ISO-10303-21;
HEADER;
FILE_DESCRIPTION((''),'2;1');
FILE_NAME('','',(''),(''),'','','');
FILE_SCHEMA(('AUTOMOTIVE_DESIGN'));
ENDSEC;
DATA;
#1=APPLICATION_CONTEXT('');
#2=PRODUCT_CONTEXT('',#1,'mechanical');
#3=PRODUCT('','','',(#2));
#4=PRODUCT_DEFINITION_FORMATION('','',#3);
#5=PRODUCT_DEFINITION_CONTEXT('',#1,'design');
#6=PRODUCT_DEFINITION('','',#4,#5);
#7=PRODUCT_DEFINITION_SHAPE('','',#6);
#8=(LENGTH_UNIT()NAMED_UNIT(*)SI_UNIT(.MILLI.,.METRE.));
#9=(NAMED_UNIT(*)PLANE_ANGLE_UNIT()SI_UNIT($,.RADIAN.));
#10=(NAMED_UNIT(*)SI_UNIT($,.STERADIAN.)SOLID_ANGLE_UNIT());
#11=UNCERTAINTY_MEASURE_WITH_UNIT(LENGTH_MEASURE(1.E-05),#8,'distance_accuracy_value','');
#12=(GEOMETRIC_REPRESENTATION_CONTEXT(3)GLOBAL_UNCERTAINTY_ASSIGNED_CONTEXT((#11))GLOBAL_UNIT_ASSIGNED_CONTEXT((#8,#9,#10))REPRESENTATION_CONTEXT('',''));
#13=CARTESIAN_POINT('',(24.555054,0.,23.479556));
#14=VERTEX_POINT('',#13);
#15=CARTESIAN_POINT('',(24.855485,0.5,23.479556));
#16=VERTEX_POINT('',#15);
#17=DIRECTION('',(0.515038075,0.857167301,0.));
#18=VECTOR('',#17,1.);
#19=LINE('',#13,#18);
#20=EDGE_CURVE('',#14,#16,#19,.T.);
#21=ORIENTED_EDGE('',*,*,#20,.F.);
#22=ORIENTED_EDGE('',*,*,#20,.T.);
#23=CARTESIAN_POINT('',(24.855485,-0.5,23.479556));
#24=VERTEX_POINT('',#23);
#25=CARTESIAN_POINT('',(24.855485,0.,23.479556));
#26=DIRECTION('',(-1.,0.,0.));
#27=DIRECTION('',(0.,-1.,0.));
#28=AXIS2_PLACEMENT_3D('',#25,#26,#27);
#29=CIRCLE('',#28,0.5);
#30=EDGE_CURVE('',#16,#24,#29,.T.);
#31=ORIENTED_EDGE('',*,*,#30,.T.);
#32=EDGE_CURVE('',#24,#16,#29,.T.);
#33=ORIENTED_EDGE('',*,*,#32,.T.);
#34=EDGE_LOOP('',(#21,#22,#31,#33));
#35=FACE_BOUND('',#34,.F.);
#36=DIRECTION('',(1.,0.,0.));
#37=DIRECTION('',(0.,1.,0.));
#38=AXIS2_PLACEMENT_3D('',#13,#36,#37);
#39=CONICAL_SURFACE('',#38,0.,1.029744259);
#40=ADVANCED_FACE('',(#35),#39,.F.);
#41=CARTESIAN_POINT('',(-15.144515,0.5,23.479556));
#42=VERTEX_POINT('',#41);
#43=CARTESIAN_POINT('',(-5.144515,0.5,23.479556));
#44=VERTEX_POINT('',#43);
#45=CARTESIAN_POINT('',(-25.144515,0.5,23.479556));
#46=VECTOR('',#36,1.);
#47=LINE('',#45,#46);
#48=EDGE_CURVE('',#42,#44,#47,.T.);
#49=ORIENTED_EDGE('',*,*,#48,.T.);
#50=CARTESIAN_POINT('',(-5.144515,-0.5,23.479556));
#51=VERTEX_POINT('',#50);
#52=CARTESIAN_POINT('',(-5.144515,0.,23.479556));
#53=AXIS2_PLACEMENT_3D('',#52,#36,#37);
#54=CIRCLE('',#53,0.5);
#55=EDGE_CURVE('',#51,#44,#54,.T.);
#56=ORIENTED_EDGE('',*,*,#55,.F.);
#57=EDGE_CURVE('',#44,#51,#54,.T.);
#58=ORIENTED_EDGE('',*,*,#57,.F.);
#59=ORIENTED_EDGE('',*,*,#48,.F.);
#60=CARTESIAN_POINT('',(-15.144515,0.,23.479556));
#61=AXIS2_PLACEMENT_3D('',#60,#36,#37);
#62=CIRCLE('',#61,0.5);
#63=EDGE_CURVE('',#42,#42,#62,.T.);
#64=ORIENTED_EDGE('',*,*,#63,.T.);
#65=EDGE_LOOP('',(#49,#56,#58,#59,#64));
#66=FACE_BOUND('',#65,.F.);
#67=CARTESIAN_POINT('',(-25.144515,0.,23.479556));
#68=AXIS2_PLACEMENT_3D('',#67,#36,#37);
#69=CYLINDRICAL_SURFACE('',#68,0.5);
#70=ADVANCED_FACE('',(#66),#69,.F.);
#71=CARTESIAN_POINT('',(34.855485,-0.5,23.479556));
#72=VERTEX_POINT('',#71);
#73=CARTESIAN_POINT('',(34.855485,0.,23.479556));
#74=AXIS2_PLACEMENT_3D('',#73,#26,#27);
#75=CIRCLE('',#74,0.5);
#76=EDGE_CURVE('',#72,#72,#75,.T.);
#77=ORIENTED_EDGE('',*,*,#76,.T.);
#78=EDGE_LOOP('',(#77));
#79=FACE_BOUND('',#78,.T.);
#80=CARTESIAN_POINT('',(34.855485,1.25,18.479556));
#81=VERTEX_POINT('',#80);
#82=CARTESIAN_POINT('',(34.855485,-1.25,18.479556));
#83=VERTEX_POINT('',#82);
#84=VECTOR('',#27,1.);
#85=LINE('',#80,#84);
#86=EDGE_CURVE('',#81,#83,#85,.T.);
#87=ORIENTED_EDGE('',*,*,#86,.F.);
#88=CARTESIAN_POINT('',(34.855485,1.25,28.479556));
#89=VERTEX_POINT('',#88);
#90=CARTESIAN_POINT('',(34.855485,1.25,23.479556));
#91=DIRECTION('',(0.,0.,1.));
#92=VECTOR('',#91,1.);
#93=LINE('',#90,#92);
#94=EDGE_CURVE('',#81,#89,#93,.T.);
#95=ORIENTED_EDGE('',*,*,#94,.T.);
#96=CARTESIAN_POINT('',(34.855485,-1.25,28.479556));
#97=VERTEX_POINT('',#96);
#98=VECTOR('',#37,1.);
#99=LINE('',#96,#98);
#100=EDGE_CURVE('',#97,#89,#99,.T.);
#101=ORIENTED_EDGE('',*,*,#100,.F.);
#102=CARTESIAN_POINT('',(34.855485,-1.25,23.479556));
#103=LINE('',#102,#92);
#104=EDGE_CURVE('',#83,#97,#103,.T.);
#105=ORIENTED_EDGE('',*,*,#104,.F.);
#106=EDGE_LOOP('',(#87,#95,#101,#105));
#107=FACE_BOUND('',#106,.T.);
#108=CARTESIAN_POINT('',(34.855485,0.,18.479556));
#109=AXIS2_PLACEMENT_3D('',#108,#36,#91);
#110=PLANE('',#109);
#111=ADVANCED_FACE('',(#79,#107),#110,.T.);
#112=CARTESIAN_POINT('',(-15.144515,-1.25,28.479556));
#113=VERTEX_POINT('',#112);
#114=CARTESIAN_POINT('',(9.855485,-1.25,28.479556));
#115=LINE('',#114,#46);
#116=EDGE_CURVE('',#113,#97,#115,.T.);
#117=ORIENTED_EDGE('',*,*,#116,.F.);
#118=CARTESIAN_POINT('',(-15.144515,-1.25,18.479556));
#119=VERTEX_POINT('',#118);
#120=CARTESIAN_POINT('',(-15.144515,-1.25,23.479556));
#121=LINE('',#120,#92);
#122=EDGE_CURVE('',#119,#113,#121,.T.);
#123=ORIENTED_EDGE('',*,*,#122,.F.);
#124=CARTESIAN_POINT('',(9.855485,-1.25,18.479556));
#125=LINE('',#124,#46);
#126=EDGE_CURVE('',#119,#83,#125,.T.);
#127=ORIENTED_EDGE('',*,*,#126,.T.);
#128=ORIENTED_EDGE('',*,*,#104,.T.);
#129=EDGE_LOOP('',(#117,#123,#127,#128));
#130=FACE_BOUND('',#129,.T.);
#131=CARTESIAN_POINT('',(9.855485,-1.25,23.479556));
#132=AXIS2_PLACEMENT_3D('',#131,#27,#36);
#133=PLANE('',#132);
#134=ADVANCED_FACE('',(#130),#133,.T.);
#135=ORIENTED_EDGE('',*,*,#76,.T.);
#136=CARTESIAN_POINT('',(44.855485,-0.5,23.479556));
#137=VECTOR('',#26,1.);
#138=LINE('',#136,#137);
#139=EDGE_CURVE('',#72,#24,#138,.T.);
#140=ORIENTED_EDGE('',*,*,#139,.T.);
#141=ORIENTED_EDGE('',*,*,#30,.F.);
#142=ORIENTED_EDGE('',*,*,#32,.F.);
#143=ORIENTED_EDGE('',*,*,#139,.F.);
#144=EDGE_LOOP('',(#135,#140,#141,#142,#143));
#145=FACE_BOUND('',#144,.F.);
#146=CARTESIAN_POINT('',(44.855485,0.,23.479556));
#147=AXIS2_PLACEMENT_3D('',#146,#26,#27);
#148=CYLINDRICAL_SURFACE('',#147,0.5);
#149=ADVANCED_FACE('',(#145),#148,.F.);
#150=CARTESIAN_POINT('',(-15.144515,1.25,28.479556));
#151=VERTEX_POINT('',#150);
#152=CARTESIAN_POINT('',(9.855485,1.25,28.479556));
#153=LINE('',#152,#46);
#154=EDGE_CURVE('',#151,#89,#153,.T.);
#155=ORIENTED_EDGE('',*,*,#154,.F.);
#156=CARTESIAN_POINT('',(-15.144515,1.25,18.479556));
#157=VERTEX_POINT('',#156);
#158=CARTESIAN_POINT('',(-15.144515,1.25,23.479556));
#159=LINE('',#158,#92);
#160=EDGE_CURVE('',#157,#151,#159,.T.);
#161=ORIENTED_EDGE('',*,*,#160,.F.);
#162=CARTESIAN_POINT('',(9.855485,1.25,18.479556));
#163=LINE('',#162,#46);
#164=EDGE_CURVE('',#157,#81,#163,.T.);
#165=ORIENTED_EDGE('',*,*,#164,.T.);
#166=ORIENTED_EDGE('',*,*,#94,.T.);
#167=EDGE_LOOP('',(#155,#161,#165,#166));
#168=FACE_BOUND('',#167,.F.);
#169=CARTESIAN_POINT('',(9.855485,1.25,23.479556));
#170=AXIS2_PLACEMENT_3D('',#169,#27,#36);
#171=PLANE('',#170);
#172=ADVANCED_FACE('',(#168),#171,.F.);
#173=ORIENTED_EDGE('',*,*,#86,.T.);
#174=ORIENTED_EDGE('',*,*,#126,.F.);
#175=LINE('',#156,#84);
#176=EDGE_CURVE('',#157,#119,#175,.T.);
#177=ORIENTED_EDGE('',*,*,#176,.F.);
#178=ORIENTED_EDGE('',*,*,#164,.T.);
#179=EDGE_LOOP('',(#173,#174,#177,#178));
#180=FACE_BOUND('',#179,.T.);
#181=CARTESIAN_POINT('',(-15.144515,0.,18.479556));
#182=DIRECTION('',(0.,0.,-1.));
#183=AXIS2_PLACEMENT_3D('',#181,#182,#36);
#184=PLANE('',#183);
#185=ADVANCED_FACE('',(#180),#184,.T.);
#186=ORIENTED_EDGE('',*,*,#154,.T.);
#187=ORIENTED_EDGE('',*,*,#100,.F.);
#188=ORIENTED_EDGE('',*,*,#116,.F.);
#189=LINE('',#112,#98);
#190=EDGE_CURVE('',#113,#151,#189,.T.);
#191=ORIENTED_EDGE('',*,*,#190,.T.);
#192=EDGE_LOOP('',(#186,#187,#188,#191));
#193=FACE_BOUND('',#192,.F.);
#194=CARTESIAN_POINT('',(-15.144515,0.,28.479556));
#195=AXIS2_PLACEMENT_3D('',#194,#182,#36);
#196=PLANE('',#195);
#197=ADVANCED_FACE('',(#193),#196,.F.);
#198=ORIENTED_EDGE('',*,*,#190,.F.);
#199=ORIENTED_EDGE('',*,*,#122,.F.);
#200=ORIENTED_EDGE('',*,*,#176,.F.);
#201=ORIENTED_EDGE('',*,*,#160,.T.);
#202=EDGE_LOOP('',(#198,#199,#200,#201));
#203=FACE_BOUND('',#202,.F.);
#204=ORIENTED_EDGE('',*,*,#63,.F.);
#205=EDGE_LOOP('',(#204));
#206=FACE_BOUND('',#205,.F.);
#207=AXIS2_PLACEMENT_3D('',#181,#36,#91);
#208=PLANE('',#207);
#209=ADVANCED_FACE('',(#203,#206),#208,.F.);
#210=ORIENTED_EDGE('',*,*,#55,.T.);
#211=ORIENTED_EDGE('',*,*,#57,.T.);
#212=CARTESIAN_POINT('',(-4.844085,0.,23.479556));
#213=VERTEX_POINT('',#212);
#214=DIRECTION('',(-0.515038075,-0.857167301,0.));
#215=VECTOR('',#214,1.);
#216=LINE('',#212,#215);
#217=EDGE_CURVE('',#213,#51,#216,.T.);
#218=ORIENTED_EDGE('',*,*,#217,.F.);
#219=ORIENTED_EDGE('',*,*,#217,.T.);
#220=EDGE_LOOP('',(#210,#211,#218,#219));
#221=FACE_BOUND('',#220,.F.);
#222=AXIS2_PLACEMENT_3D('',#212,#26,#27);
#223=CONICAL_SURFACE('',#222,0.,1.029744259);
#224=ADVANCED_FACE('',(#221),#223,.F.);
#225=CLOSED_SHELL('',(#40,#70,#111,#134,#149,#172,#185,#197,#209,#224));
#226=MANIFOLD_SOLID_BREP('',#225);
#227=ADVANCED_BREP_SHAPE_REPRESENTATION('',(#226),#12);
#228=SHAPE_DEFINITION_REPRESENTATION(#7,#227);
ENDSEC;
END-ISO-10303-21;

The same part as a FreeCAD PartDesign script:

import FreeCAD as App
import Part
import Sketcher

V = App.Vector


def add_polygon(sketch, points):
    """Adds a closed chain of lines whose ends are joined by coincident constraints."""
    first, n = sketch.GeometryCount, len(points)
    for a, b in zip(points, points[1:] + points[:1]):
        sketch.addGeometry(Part.LineSegment(App.Vector(*a, 0), App.Vector(*b, 0)), False)
    for i in range(n):
        sketch.addConstraint(Sketcher.Constraint("Coincident", first + i, 2, first + (i + 1) % n, 1))

doc = App.newDocument("Part")
body = doc.addObject("PartDesign::Body", "Body")

# Sketch on XZ plane
sketch1 = doc.addObject("Sketcher::SketchObject", "Sketch")
body.addObject(sketch1)
sketch1.AttachmentSupport = (doc.XZ_Plane, [""])
sketch1.MapMode = "FlatFace"
add_polygon(sketch1, [(-15, 28), (-15, 18), (35, 18), (35, 28)])  # lines 0-3
sketch1.addConstraint([
    Sketcher.Constraint("Vertical", 0),
    Sketcher.Constraint("Horizontal", 1),
    Sketcher.Constraint("Vertical", 2),
    Sketcher.Constraint("Horizontal", 3),
    Sketcher.Constraint("DistanceX", 1, 1, 1, 2, 50.0),
    Sketcher.Constraint("DistanceY", 0, 2, 0, 1, 10.0),
    Sketcher.Constraint("DistanceX", 0, 2, -1, 1, 15.144515),
    Sketcher.Constraint("DistanceY", -1, 1, 0, 2, 18.479556),
])
pad1 = doc.addObject("PartDesign::Pad", "Pad")
body.addObject(pad1)
pad1.Profile = sketch1
pad1.Length = 2.5
pad1.Midplane = True

# Sketch on YZ plane
sketch2 = doc.addObject("Sketcher::SketchObject", "Sketch001")
body.addObject(sketch2)
sketch2.AttachmentSupport = (doc.YZ_Plane, [""])
sketch2.MapMode = "FlatFace"
sketch2.AttachmentOffset = App.Placement(V(0, 0, 34.855485), App.Rotation())
sketch2.addGeometry(Part.Circle(V(0, 23.5, 0), V(0, 0, 1), 0.5), False)
sketch2.addConstraint([
    Sketcher.Constraint("PointOnObject", 0, 3, -2),
    Sketcher.Constraint("Diameter", 0, 1.0),
    Sketcher.Constraint("DistanceY", -1, 1, 0, 3, 23.479556),
])
doc.recompute()
hole = doc.addObject("PartDesign::Hole", "Hole")
body.addObject(hole)
hole.Profile = sketch2
hole.ThreadType = "None"
hole.Diameter = 1
hole.DepthType = "Dimension"
hole.Depth = 10
hole.DrillPoint = "Angled"
hole.DrillPointAngle = 118

# Sketch on YZ plane
sketch3 = doc.addObject("Sketcher::SketchObject", "Sketch002")
body.addObject(sketch3)
sketch3.AttachmentSupport = (doc.YZ_Plane, [""])
sketch3.MapMode = "FlatFace"
sketch3.AttachmentOffset = App.Placement(V(0, 0, -15.144515), App.Rotation())
sketch3.addGeometry(Part.Circle(V(0, 23.5, 0), V(0, 0, 1), 0.5), False)
sketch3.addConstraint([
    Sketcher.Constraint("PointOnObject", 0, 3, -2),
    Sketcher.Constraint("Diameter", 0, 1.0),
    Sketcher.Constraint("DistanceY", -1, 1, 0, 3, 23.479556),
])
doc.recompute()
hole2 = doc.addObject("PartDesign::Hole", "Hole001")
body.addObject(hole2)
hole2.Profile = sketch3
hole2.ThreadType = "None"
hole2.Diameter = 1
hole2.DepthType = "Dimension"
hole2.Depth = 10
hole2.DrillPoint = "Angled"
hole2.DrillPointAngle = 118
hole2.Reversed = True

doc.recompute()
